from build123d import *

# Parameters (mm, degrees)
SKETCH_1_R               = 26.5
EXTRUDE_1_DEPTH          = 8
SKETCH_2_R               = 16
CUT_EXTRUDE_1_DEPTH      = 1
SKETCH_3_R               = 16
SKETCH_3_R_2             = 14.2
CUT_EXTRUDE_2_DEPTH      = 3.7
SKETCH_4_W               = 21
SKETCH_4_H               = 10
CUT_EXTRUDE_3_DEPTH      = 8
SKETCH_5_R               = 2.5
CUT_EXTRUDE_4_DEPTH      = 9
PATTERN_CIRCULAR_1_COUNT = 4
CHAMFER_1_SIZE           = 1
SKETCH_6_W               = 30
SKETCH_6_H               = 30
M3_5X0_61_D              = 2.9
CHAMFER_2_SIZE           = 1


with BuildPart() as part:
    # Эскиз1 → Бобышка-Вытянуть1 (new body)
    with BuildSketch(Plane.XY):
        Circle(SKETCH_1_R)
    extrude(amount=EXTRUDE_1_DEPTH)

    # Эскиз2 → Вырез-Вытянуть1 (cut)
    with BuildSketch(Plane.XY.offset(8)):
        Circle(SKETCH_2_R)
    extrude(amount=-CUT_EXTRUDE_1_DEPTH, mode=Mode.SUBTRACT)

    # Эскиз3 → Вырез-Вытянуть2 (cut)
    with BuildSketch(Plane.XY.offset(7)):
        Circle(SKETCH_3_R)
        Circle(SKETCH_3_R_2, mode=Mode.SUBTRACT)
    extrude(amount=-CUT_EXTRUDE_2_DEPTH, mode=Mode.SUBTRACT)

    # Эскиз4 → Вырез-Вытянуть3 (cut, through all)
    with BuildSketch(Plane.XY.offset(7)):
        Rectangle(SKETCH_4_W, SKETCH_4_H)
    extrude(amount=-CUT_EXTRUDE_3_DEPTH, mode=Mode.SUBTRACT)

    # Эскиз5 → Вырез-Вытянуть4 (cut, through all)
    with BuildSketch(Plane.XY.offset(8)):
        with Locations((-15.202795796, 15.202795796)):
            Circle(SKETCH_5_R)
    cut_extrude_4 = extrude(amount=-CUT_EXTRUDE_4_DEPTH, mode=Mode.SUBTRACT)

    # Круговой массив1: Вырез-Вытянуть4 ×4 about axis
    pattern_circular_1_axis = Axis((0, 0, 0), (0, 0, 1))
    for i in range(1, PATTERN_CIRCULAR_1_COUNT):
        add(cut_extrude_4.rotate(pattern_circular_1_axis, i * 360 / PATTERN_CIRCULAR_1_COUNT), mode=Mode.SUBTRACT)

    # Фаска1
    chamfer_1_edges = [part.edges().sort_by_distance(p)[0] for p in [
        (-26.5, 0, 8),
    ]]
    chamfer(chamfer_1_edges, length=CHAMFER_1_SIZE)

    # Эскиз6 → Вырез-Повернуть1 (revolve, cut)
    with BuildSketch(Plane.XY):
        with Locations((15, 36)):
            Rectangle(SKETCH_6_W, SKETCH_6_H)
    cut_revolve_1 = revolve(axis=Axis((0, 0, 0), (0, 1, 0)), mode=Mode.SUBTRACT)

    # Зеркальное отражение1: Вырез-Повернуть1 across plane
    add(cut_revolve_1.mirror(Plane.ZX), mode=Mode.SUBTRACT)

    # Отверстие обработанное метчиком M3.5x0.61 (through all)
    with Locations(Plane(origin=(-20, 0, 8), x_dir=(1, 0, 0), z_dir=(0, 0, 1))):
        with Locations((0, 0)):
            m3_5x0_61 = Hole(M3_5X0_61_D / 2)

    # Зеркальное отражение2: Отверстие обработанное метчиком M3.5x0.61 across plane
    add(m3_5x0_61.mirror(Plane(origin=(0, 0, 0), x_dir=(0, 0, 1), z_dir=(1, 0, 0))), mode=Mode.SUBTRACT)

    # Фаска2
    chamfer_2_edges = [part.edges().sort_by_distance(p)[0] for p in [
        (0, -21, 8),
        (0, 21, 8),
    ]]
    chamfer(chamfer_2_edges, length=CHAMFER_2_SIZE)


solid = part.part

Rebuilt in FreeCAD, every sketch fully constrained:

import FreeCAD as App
import Part
import Sketcher
from FreeCAD import Vector
Q = App.Units.Quantity


def edges_at(feature, points):
    """Names of the edges that pass closest to the given points."""
    edges = feature.Shape.Edges
    near = lambda p: min(range(len(edges)), key=lambda i: edges[i].distToShape(Part.Vertex(*p))[0])
    return sorted({f"Edge{near(p) + 1}" for p in points})

doc = App.newDocument("Part")
body = doc.addObject("PartDesign::Body", "Body")

# Sketch on XY plane
sketch1 = body.newObject("Sketcher::SketchObject", "Sketch")
sketch1.AttachmentSupport = (doc.getObject("XY_Plane"), [""])
sketch1.MapMode = "FlatFace"
sketch1.addGeometry(Part.Circle(Vector(0, 0, 0), Vector(0, 0, 1), 26), False)
sketch1.addConstraint(Sketcher.Constraint("Coincident", 0, 3, -1, 1))
sketch1.addConstraint(Sketcher.Constraint("Diameter", 0, Q("53 mm")))
pad1 = body.newObject("PartDesign::Pad", "Pad")
pad1.Profile = sketch1
pad1.Length = 8

# Sketch on XY plane
sketch2 = body.newObject("Sketcher::SketchObject", "Sketch001")
sketch2.AttachmentSupport = (doc.getObject("XY_Plane"), [""])
sketch2.MapMode = "FlatFace"
sketch2.AttachmentOffset = App.Placement(Vector(0, 0, 8), App.Rotation())
sketch2.addGeometry(Part.Circle(Vector(0, 0, 0), Vector(0, 0, 1), 16), False)
sketch2.addConstraint(Sketcher.Constraint("Coincident", 0, 3, -1, 1))
sketch2.addConstraint(Sketcher.Constraint("Diameter", 0, Q("32 mm")))
pocket1 = body.newObject("PartDesign::Pocket", "Pocket")
pocket1.Profile = sketch2
pocket1.Length = 1

# Sketch on XY plane
sketch3 = body.newObject("Sketcher::SketchObject", "Sketch002")
sketch3.AttachmentSupport = (doc.getObject("XY_Plane"), [""])
sketch3.MapMode = "FlatFace"
sketch3.AttachmentOffset = App.Placement(Vector(0, 0, 7), App.Rotation())
sketch3.addGeometry(Part.Circle(Vector(0, 0, 0), Vector(0, 0, 1), 16), False)
sketch3.addGeometry(Part.Circle(Vector(0, 0, 0), Vector(0, 0, 1), 14), False)
sketch3.addConstraint(Sketcher.Constraint("Coincident", 0, 3, -1, 1))
sketch3.addConstraint(Sketcher.Constraint("Coincident", 1, 3, -1, 1))
sketch3.addConstraint(Sketcher.Constraint("Diameter", 0, Q("32 mm")))
sketch3.addConstraint(Sketcher.Constraint("Diameter", 1, Q("28.4 mm")))
pocket2 = body.newObject("PartDesign::Pocket", "Pocket001")
pocket2.Profile = sketch3
pocket2.Length = 3.7

# Sketch on XY plane
sketch4 = body.newObject("Sketcher::SketchObject", "Sketch003")
sketch4.AttachmentSupport = (doc.getObject("XY_Plane"), [""])
sketch4.MapMode = "FlatFace"
sketch4.AttachmentOffset = App.Placement(Vector(0, 0, 7), App.Rotation())
sketch4.addGeometry(Part.LineSegment(Vector(-10, 5, 0), Vector(-10, -5, 0)), False)
sketch4.addGeometry(Part.LineSegment(Vector(-10, -5, 0), Vector(10, -5, 0)), False)
sketch4.addGeometry(Part.LineSegment(Vector(10, -5, 0), Vector(10, 5, 0)), False)
sketch4.addGeometry(Part.LineSegment(Vector(10, 5, 0), Vector(-10, 5, 0)), False)
sketch4.addConstraint(Sketcher.Constraint("Coincident", 0, 2, 1, 1))
sketch4.addConstraint(Sketcher.Constraint("Coincident", 1, 2, 2, 1))
sketch4.addConstraint(Sketcher.Constraint("Coincident", 2, 2, 3, 1))
sketch4.addConstraint(Sketcher.Constraint("Coincident", 3, 2, 0, 1))
sketch4.addConstraint(Sketcher.Constraint("Vertical", 0))
sketch4.addConstraint(Sketcher.Constraint("Horizontal", 1))
sketch4.addConstraint(Sketcher.Constraint("Vertical", 2))
sketch4.addConstraint(Sketcher.Constraint("Horizontal", 3))
sketch4.addConstraint(Sketcher.Constraint("Symmetric", 0, 2, 2, 2, -1, 1))
sketch4.addConstraint(Sketcher.Constraint("DistanceX", 1, 1, 1, 2, Q("21 mm")))
sketch4.addConstraint(Sketcher.Constraint("DistanceY", 0, 2, 0, 1, Q("10 mm")))
pocket3 = body.newObject("PartDesign::Pocket", "Pocket002")
pocket3.Profile = sketch4
pocket3.Type = "ThroughAll"

# Sketch on XY plane
sketch5 = body.newObject("Sketcher::SketchObject", "Sketch004")
sketch5.AttachmentSupport = (doc.getObject("XY_Plane"), [""])
sketch5.MapMode = "FlatFace"
sketch5.AttachmentOffset = App.Placement(Vector(0, 0, 8), App.Rotation())
sketch5.addGeometry(Part.Circle(Vector(-15.2, 15.2, 0), Vector(0, 0, 1), 2.5), False)
sketch5.addConstraint(Sketcher.Constraint("Diameter", 0, Q("5 mm")))
sketch5.addConstraint(Sketcher.Constraint("DistanceX", 0, 3, -1, 1, Q("15.202796 mm")))
sketch5.addConstraint(Sketcher.Constraint("DistanceY", -1, 1, 0, 3, Q("15.202796 mm")))
pocket4 = body.newObject("PartDesign::Pocket", "Pocket003")
pocket4.Profile = sketch5
pocket4.Type = "ThroughAll"
doc.recompute()

polarpattern = body.newObject("PartDesign::PolarPattern", "PolarPattern")
polarpattern.Originals = [pocket4]
polarpattern.Axis = (doc.getObject("Z_Axis"), [""])
polarpattern.Angle = 360
polarpattern.Occurrences = 4
body.Tip = polarpattern
doc.recompute()

chamfer = body.newObject("PartDesign::Chamfer", "Chamfer")
chamfer.Base = (polarpattern, edges_at(polarpattern, [(-26.5, 0, 8)]))
chamfer.Size = 1

# Sketch on XY plane
sketch6 = body.newObject("Sketcher::SketchObject", "Sketch005")
sketch6.AttachmentSupport = (doc.getObject("XY_Plane"), [""])
sketch6.MapMode = "FlatFace"
sketch6.addGeometry(Part.LineSegment(Vector(0, 51, 0), Vector(0, 21, 0)), False)
sketch6.addGeometry(Part.LineSegment(Vector(0, 21, 0), Vector(30, 21, 0)), False)
sketch6.addGeometry(Part.LineSegment(Vector(30, 21, 0), Vector(30, 51, 0)), False)
sketch6.addGeometry(Part.LineSegment(Vector(30, 51, 0), Vector(0, 51, 0)), False)
sketch6.addConstraint(Sketcher.Constraint("Coincident", 0, 2, 1, 1))
sketch6.addConstraint(Sketcher.Constraint("Coincident", 1, 2, 2, 1))
sketch6.addConstraint(Sketcher.Constraint("Coincident", 2, 2, 3, 1))
sketch6.addConstraint(Sketcher.Constraint("Coincident", 3, 2, 0, 1))
sketch6.addConstraint(Sketcher.Constraint("Vertical", 0))
sketch6.addConstraint(Sketcher.Constraint("Horizontal", 1))
sketch6.addConstraint(Sketcher.Constraint("Vertical", 2))
sketch6.addConstraint(Sketcher.Constraint("Horizontal", 3))
sketch6.addConstraint(Sketcher.Constraint("PointOnObject", 0, 2, -2))
sketch6.addConstraint(Sketcher.Constraint("Equal", 3, 0))
sketch6.addConstraint(Sketcher.Constraint("DistanceX", 1, 1, 1, 2, Q("30 mm")))
sketch6.addConstraint(Sketcher.Constraint("DistanceY", -1, 1, 0, 2, Q("21 mm")))
groove = body.newObject("PartDesign::Groove", "Groove")
groove.Profile = sketch6
groove.ReferenceAxis = (sketch6, ["V_Axis"])
groove.Angle = 360
doc.recompute()

mirrored = body.newObject("PartDesign::Mirrored", "Mirrored")
mirrored.Originals = [groove]
mirrored.MirrorPlane = (doc.getObject("XZ_Plane"), [""])
body.Tip = mirrored

# Sketch on XY plane
sketch7 = body.newObject("Sketcher::SketchObject", "Sketch006")
sketch7.AttachmentSupport = (doc.getObject("XY_Plane"), [""])
sketch7.MapMode = "FlatFace"
sketch7.AttachmentOffset = App.Placement(Vector(0, 0, 8), App.Rotation())
sketch7.addGeometry(Part.Circle(Vector(-20, 0, 0), Vector(0, 0, 1), 1.4), False)
sketch7.addConstraint(Sketcher.Constraint("PointOnObject", 0, 3, -1))
sketch7.addConstraint(Sketcher.Constraint("Diameter", 0, Q("2.9 mm")))
sketch7.addConstraint(Sketcher.Constraint("DistanceX", 0, 3, -1, 1, Q("20 mm")))
doc.recompute()
hole = body.newObject("PartDesign::Hole", "Hole")
hole.Profile = sketch7
hole.ThreadType = "None"
hole.Diameter = 2.9
hole.DepthType = "ThroughAll"
doc.recompute()

mirrored2 = body.newObject("PartDesign::Mirrored", "Mirrored001")
mirrored2.Originals = [hole]
mirrored2.MirrorPlane = (doc.getObject("YZ_Plane"), [""])
body.Tip = mirrored2
doc.recompute()

chamfer2 = body.newObject("PartDesign::Chamfer", "Chamfer001")
chamfer2.Base = (mirrored2, edges_at(mirrored2, [(0, -21, 8), (0, 21, 8)]))
chamfer2.Size = 1

doc.recompute()
